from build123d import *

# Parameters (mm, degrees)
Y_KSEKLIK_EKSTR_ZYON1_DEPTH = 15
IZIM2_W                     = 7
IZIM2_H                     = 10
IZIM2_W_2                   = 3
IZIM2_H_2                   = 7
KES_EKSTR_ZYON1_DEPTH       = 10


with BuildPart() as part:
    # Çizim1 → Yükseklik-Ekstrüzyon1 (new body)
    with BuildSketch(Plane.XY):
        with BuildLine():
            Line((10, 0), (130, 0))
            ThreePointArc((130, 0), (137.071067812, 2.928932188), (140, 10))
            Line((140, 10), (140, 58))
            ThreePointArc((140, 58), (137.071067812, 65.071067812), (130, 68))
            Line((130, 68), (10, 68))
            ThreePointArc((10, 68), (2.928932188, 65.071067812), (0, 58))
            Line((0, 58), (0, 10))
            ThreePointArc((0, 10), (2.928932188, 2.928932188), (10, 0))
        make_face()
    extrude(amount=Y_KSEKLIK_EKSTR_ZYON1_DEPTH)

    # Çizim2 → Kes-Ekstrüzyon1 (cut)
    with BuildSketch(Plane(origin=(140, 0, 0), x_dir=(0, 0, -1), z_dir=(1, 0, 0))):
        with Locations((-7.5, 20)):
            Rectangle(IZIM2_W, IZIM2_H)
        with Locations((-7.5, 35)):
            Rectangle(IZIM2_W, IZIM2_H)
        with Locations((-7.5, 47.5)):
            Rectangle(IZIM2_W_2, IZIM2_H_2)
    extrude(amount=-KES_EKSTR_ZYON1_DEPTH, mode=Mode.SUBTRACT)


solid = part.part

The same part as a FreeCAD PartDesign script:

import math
import FreeCAD as App
import Part
import Sketcher

V = App.Vector


def add_polygon(sketch, points):
    """Adds a closed chain of lines whose ends are joined by coincident constraints."""
    first, n = sketch.GeometryCount, len(points)
    for a, b in zip(points, points[1:] + points[:1]):
        sketch.addGeometry(Part.LineSegment(App.Vector(*a, 0), App.Vector(*b, 0)), False)
    for i in range(n):
        sketch.addConstraint(Sketcher.Constraint("Coincident", first + i, 2, first + (i + 1) % n, 1))

doc = App.newDocument("Part")
body = doc.addObject("PartDesign::Body", "Body")

# Sketch on XY plane
sketch1 = body.newObject("Sketcher::SketchObject", "Sketch")
sketch1.AttachmentSupport = (doc.getObject("XY_Plane"), [""])
sketch1.MapMode = "FlatFace"
sketch1.addGeometry(Part.LineSegment(V(10, 0, 0), V(130, 0, 0)), False)
sketch1.addGeometry(Part.ArcOfCircle(Part.Circle(V(130, 10, 0), V(0, 0, 1), 10), math.radians(-90), math.radians(0)), False)
sketch1.addGeometry(Part.LineSegment(V(140, 10, 0), V(140, 58, 0)), False)
sketch1.addGeometry(Part.ArcOfCircle(Part.Circle(V(130, 58, 0), V(0, 0, 1), 10), math.radians(0), math.radians(90)), False)
sketch1.addGeometry(Part.LineSegment(V(130, 68, 0), V(10, 68, 0)), False)
sketch1.addGeometry(Part.ArcOfCircle(Part.Circle(V(10, 58, 0), V(0, 0, 1), 10), math.radians(90), math.radians(180)), False)
sketch1.addGeometry(Part.LineSegment(V(0, 58, 0), V(0, 10, 0)), False)
sketch1.addGeometry(Part.ArcOfCircle(Part.Circle(V(10, 10, 0), V(0, 0, 1), 10), math.radians(180), math.radians(270)), False)
sketch1.addConstraint(Sketcher.Constraint("Tangent", 0, 2, 1, 1))
sketch1.addConstraint(Sketcher.Constraint("Tangent", 1, 2, 2, 1))
sketch1.addConstraint(Sketcher.Constraint("Tangent", 2, 2, 3, 1))
sketch1.addConstraint(Sketcher.Constraint("Tangent", 3, 2, 4, 1))
sketch1.addConstraint(Sketcher.Constraint("Tangent", 4, 2, 5, 1))
sketch1.addConstraint(Sketcher.Constraint("Tangent", 5, 2, 6, 1))
sketch1.addConstraint(Sketcher.Constraint("Tangent", 6, 2, 7, 1))
sketch1.addConstraint(Sketcher.Constraint("Tangent", 7, 2, 0, 1))
sketch1.addConstraint(Sketcher.Constraint("Horizontal", 0))
sketch1.addConstraint(Sketcher.Constraint("Vertical", 2))
sketch1.addConstraint(Sketcher.Constraint("Horizontal", 4))
sketch1.addConstraint(Sketcher.Constraint("Vertical", 6))
sketch1.addConstraint(Sketcher.Constraint("Equal", 1, 3))
sketch1.addConstraint(Sketcher.Constraint("Equal", 3, 5))
sketch1.addConstraint(Sketcher.Constraint("Equal", 5, 7))
sketch1.addConstraint(Sketcher.Constraint("PointOnObject", 0, 2, -1))
sketch1.addConstraint(Sketcher.Constraint("PointOnObject", 5, 2, -2))
sketch1.addConstraint(Sketcher.Constraint("Radius", 1, 10.0))
sketch1.addConstraint(Sketcher.Constraint("DistanceX", 0, 1, 0, 2, 120.0))
sketch1.addConstraint(Sketcher.Constraint("DistanceY", 2, 1, 2, 2, 48.0))
pad1 = body.newObject("PartDesign::Pad", "Pad")
pad1.Profile = sketch1
pad1.Length = 15

# Sketch on YZ plane
sketch2 = body.newObject("Sketcher::SketchObject", "Sketch001")
sketch2.AttachmentSupport = (doc.getObject("YZ_Plane"), [""])
sketch2.MapMode = "FlatFace"
sketch2.AttachmentOffset = App.Placement(V(0, 0, 140), App.Rotation())
add_polygon(sketch2, [(25, 11), (15, 11), (15, 4), (25, 4)])  # lines 0-3
add_polygon(sketch2, [(40, 11), (30, 11), (30, 4), (40, 4)])  # lines 4-7
add_polygon(sketch2, [(51, 9), (44, 9), (44, 6), (51, 6)])  # lines 8-11
sketch2.addConstraint(Sketcher.Constraint("Horizontal", 0))
sketch2.addConstraint(Sketcher.Constraint("Vertical", 1))
sketch2.addConstraint(Sketcher.Constraint("Horizontal", 2))
sketch2.addConstraint(Sketcher.Constraint("Vertical", 3))
sketch2.addConstraint(Sketcher.Constraint("Horizontal", 4))
sketch2.addConstraint(Sketcher.Constraint("Vertical", 5))
sketch2.addConstraint(Sketcher.Constraint("Horizontal", 6))
sketch2.addConstraint(Sketcher.Constraint("Vertical", 7))
sketch2.addConstraint(Sketcher.Constraint("Horizontal", 8))
sketch2.addConstraint(Sketcher.Constraint("Vertical", 9))
sketch2.addConstraint(Sketcher.Constraint("Horizontal", 10))
sketch2.addConstraint(Sketcher.Constraint("Vertical", 11))
sketch2.addConstraint(Sketcher.Constraint("Horizontal", 3, 2, 4, 2))
sketch2.addConstraint(Sketcher.Constraint("Horizontal", 2, 2, 5, 2))
sketch2.addConstraint(Sketcher.Constraint("Equal", 2, 4))
sketch2.addConstraint(Sketcher.Constraint("Equal", 10, 1))
sketch2.addConstraint(Sketcher.Constraint("DistanceX", 0, 2, 0, 1, 10.0))
sketch2.addConstraint(Sketcher.Constraint("DistanceX", 8, 2, 8, 1, 7.0))
sketch2.addConstraint(Sketcher.Constraint("DistanceY", 9, 2, 9, 1, 3.0))
sketch2.addConstraint(Sketcher.Constraint("DistanceX", -1, 1, 0, 2, 15.0))
sketch2.addConstraint(Sketcher.Constraint("DistanceY", -1, 1, 0, 2, 11.0))
sketch2.addConstraint(Sketcher.Constraint("DistanceX", -1, 1, 4, 2, 30.0))
sketch2.addConstraint(Sketcher.Constraint("DistanceX", -1, 1, 8, 2, 44.0))
sketch2.addConstraint(Sketcher.Constraint("DistanceY", -1, 1, 8, 2, 9.0))
pocket1 = body.newObject("PartDesign::Pocket", "Pocket")
pocket1.Profile = sketch2
pocket1.Length = 10

doc.recompute()
